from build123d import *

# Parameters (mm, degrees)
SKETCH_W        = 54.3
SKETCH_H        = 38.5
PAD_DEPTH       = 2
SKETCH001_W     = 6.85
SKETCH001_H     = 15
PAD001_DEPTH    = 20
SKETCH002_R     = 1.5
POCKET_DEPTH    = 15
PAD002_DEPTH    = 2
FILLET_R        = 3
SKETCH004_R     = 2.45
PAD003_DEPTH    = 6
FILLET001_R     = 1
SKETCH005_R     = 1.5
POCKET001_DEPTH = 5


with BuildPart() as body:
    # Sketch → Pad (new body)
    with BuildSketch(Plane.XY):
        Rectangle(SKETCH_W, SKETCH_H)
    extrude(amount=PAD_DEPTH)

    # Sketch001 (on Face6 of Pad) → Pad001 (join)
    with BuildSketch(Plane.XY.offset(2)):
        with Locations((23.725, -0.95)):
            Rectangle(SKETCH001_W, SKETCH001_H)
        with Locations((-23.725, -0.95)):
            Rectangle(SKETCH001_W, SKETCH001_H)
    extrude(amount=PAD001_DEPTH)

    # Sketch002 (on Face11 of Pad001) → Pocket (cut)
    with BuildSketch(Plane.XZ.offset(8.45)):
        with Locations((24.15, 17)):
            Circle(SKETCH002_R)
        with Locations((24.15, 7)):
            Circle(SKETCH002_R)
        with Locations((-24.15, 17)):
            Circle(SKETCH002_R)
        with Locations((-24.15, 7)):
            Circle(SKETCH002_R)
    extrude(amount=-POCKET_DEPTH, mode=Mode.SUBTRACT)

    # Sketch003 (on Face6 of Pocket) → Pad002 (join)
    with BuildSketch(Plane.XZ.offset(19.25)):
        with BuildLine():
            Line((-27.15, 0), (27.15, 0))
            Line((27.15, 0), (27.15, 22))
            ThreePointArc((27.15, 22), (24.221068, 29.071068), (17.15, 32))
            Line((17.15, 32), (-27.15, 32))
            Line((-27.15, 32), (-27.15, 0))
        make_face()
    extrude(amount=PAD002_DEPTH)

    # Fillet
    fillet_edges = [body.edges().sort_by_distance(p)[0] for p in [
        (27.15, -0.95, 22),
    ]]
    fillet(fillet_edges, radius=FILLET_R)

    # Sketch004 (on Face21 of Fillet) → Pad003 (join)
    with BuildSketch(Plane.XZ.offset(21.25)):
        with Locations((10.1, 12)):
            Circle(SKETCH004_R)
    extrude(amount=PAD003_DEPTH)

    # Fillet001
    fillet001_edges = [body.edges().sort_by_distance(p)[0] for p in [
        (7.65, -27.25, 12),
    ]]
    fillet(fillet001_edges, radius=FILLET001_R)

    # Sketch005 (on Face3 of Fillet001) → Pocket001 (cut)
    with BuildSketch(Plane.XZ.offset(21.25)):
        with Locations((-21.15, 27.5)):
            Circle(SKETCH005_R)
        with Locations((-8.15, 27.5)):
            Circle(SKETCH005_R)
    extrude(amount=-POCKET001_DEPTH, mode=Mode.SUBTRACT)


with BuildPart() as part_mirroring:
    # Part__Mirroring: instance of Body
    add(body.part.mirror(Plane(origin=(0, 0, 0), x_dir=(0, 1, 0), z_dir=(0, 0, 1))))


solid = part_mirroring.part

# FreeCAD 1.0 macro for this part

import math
import FreeCAD as App
import Part
import Sketcher
Q = App.Units.Quantity


def edges_at(feature, points):
    """Names of the edges that pass closest to the given points."""
    edges = feature.Shape.Edges
    near = lambda p: min(range(len(edges)), key=lambda i: edges[i].distToShape(Part.Vertex(*p))[0])
    return sorted({f"Edge{near(p) + 1}" for p in points})


def add_polygon(sketch, points):
    """Adds a closed chain of lines whose ends are joined by coincident constraints."""
    first, n = sketch.GeometryCount, len(points)
    for a, b in zip(points, points[1:] + points[:1]):
        sketch.addGeometry(Part.LineSegment(App.Vector(*a, 0), App.Vector(*b, 0)), False)
    for i in range(n):
        sketch.addConstraint(Sketcher.Constraint("Coincident", first + i, 2, first + (i + 1) % n, 1))

doc = App.newDocument("Part")
params = doc.addObject("Spreadsheet::Sheet", "Params")
for row, (alias, value) in enumerate([
    ("sketch1_width", "54.3 mm"),
    ("sketch1_height", "38.5 mm"),
    ("pad1_length", "2 mm"),
    ("sketch2_height", "15 mm"),
    ("sketch2_width", "6.85 mm"),
    ("pad2_length", "20 mm"),
    ("sketch3_diameter", "3 mm"),
    ("pocket1_length", "15 mm"),
    ("sketch4_radius", "9.999999 mm"),
    ("sketch4_height", "22 mm"),
    ("sketch4_width", "54.3 mm"),
    ("pad3_length", "2 mm"),
    ("fillet_radius", "3 mm"),
    ("sketch5_diameter", "4.9 mm"),
    ("pad4_length", "6 mm"),
    ("fillet2_radius", "1 mm"),
    ("sketch6_diameter", "3 mm"),
    ("pocket2_length", "5 mm"),
], start=1):
    params.set(f"A{row}", alias)
    params.set(f"B{row}", "=" + value)
    params.setAlias(f"B{row}", alias)

body = doc.addObject("PartDesign::Body", "Body")

sketch1 = body.newObject("Sketcher::SketchObject", "Sketch")
sketch1.AttachmentSupport = (doc.getObject("XY_Plane"), [""])
sketch1.MapMode = "FlatFace"
add_polygon(sketch1, [(-27, 19), (-27, -19), (27, -19), (27, 19)])
sketch1.addConstraint([
    Sketcher.Constraint("Vertical", 0),
    Sketcher.Constraint("Horizontal", 1),
    Sketcher.Constraint("Vertical", 2),
    Sketcher.Constraint("Horizontal", 3),
    Sketcher.Constraint("Symmetric", 0, 2, 2, 2, -1, 1),
    Sketcher.Constraint("DistanceX", 1, 1, 1, 2, Q("54.3 mm")),
    Sketcher.Constraint("DistanceY", 0, 2, 0, 1, Q("38.5 mm")),
])
sketch1.setExpression("Constraints[9]", "Params.sketch1_width")
sketch1.setExpression("Constraints[10]", "Params.sketch1_height")
pad1 = body.newObject("PartDesign::Pad", "Pad")
pad1.Profile = sketch1
pad1.setExpression("Length", "Params.pad1_length")

sketch2 = body.newObject("Sketcher::SketchObject", "Sketch001")
sketch2.AttachmentSupport = (doc.getObject("XY_Plane"), [""])
sketch2.MapMode = "FlatFace"
sketch2.AttachmentOffset = App.Placement(App.Vector(0, 0, 2), App.Rotation())
add_polygon(sketch2, [(20, 7), (20, -8), (27, -8), (27, 7)])
add_polygon(sketch2, [(-27, 7), (-27, -8), (-20, -8), (-20, 7)])
sketch2.addConstraint([
    Sketcher.Constraint("Vertical", 0),
    Sketcher.Constraint("Horizontal", 1),
    Sketcher.Constraint("Vertical", 2),
    Sketcher.Constraint("Horizontal", 3),
    Sketcher.Constraint("Vertical", 4),
    Sketcher.Constraint("Horizontal", 5),
    Sketcher.Constraint("Vertical", 6),
    Sketcher.Constraint("Horizontal", 7),
    Sketcher.Constraint("Symmetric", 1, 2, 4, 2, -2),
    Sketcher.Constraint("Symmetric", 3, 2, 6, 2, -2),
    Sketcher.Constraint("DistanceY", 0, 2, 0, 1, Q("15 mm")),
    Sketcher.Constraint("DistanceX", 1, 1, 1, 2, Q("6.85 mm")),
    Sketcher.Constraint("DistanceX", -1, 1, 0, 2, Q("20.3 mm")),
    Sketcher.Constraint("DistanceY", 0, 2, -1, 1, Q("8.45 mm")),
])
sketch2.setExpression("Constraints[18]", "Params.sketch2_height")
sketch2.setExpression("Constraints[19]", "Params.sketch2_width")
pad2 = body.newObject("PartDesign::Pad", "Pad001")
pad2.Profile = sketch2
pad2.setExpression("Length", "Params.pad2_length")

sketch3 = body.newObject("Sketcher::SketchObject", "Sketch002")
sketch3.AttachmentSupport = (doc.getObject("XZ_Plane"), [""])
sketch3.MapMode = "FlatFace"
sketch3.AttachmentOffset = App.Placement(App.Vector(0, 0, 8.45), App.Rotation())
sketch3.addGeometry([
    Part.Circle(App.Vector(24.1, 17, 0), App.Vector(0, 0, 1), 1.5),
    Part.Circle(App.Vector(24.1, 7, 0), App.Vector(0, 0, 1), 1.5),
    Part.Circle(App.Vector(-24.1, 17, 0), App.Vector(0, 0, 1), 1.5),
    Part.Circle(App.Vector(-24.1, 7, 0), App.Vector(0, 0, 1), 1.5),
], False)
sketch3.addConstraint([
    Sketcher.Constraint("Equal", 0, 1),
    Sketcher.Constraint("Equal", 1, 2),
    Sketcher.Constraint("Equal", 2, 3),
    Sketcher.Constraint("Symmetric", 0, 3, 2, 3, -2),
    Sketcher.Constraint("Symmetric", 1, 3, 3, 3, -2),
    Sketcher.Constraint("Vertical", 0, 3, 1, 3),
    Sketcher.Constraint("Diameter", 0, Q("3 mm")),
    Sketcher.Constraint("DistanceY", -1, 1, 0, 3, Q("17 mm")),
    Sketcher.Constraint("DistanceY", -1, 1, 1, 3, Q("7 mm")),
    Sketcher.Constraint("DistanceX", 2, 3, 0, 3, Q("48.3 mm")),
])
sketch3.setExpression("Constraints[6]", "Params.sketch3_diameter")
pocket1 = body.newObject("PartDesign::Pocket", "Pocket")
pocket1.Profile = sketch3
pocket1.setExpression("Length", "Params.pocket1_length")

sketch4 = body.newObject("Sketcher::SketchObject", "Sketch003")
sketch4.AttachmentSupport = (doc.getObject("XZ_Plane"), [""])
sketch4.MapMode = "FlatFace"
sketch4.AttachmentOffset = App.Placement(App.Vector(0, 0, 19.25), App.Rotation())
sketch4.addGeometry([
    Part.LineSegment(App.Vector(-27, 0, 0), App.Vector(27, 0, 0)),
    Part.LineSegment(App.Vector(27, 0, 0), App.Vector(27, 22, 0)),
    Part.ArcOfCircle(Part.Circle(App.Vector(17, 22, 0), App.Vector(0, 0, 1), 10), math.radians(0), math.radians(90)),
    Part.LineSegment(App.Vector(17, 32, 0), App.Vector(-27, 32, 0)),
    Part.LineSegment(App.Vector(-27, 32, 0), App.Vector(-27, 0, 0)),
], False)
sketch4.addConstraint([
    Sketcher.Constraint("Coincident", 0, 2, 1, 1),
    Sketcher.Constraint("Tangent", 1, 2, 2, 1),
    Sketcher.Constraint("Tangent", 2, 2, 3, 1),
    Sketcher.Constraint("Coincident", 3, 2, 4, 1),
    Sketcher.Constraint("Coincident", 4, 2, 0, 1),
    Sketcher.Constraint("Horizontal", 0),
    Sketcher.Constraint("Vertical", 1),
    Sketcher.Constraint("Horizontal", 3),
    Sketcher.Constraint("Vertical", 4),
    Sketcher.Constraint("Symmetric", 0, 2, 4, 2, -1, 1),
    Sketcher.Constraint("Radius", 2, Q("9.999999 mm")),
    Sketcher.Constraint("DistanceY", 1, 1, 1, 2, Q("22 mm")),
    Sketcher.Constraint("DistanceX", 0, 1, 0, 2, Q("54.3 mm")),
])
sketch4.setExpression("Constraints[10]", "Params.sketch4_radius")
sketch4.setExpression("Constraints[11]", "Params.sketch4_height")
sketch4.setExpression("Constraints[12]", "Params.sketch4_width")
pad3 = body.newObject("PartDesign::Pad", "Pad002")
pad3.Profile = sketch4
pad3.setExpression("Length", "Params.pad3_length")
doc.recompute()

fillet = body.newObject("PartDesign::Fillet", "Fillet")
fillet.Base = (pad3, edges_at(pad3, [(27.15, -0.95, 22)]))
fillet.setExpression("Radius", "Params.fillet_radius")

sketch5 = body.newObject("Sketcher::SketchObject", "Sketch004")
sketch5.AttachmentSupport = (doc.getObject("XZ_Plane"), [""])
sketch5.MapMode = "FlatFace"
sketch5.AttachmentOffset = App.Placement(App.Vector(0, 0, 21.25), App.Rotation())
sketch5.addGeometry(Part.Circle(App.Vector(10.1, 12, 0), App.Vector(0, 0, 1), 2.5), False)
sketch5.addConstraint([
    Sketcher.Constraint("Diameter", 0, Q("4.9 mm")),
    Sketcher.Constraint("DistanceY", -1, 1, 0, 3, Q("12 mm")),
    Sketcher.Constraint("DistanceX", -1, 1, 0, 3, Q("10.1 mm")),
])
sketch5.setExpression("Constraints[0]", "Params.sketch5_diameter")
pad4 = body.newObject("PartDesign::Pad", "Pad003")
pad4.Profile = sketch5
pad4.setExpression("Length", "Params.pad4_length")
doc.recompute()

fillet2 = body.newObject("PartDesign::Fillet", "Fillet001")
fillet2.Base = (pad4, edges_at(pad4, [(7.65, -27.25, 12)]))
fillet2.setExpression("Radius", "Params.fillet2_radius")

sketch6 = body.newObject("Sketcher::SketchObject", "Sketch005")
sketch6.AttachmentSupport = (doc.getObject("XZ_Plane"), [""])
sketch6.MapMode = "FlatFace"
sketch6.AttachmentOffset = App.Placement(App.Vector(0, 0, 21.25), App.Rotation())
sketch6.addGeometry([
    Part.Circle(App.Vector(-21.1, 27.5, 0), App.Vector(0, 0, 1), 1.5),
    Part.Circle(App.Vector(-8.2, 27.5, 0), App.Vector(0, 0, 1), 1.5),
], False)
sketch6.addConstraint([
    Sketcher.Constraint("Equal", 0, 1),
    Sketcher.Constraint("Horizontal", 0, 3, 1, 3),
    Sketcher.Constraint("Diameter", 0, Q("3 mm")),
    Sketcher.Constraint("DistanceX", 0, 3, 1, 3, Q("13 mm")),
    Sketcher.Constraint("DistanceY", -1, 1, 0, 3, Q("27.5 mm")),
    Sketcher.Constraint("DistanceX", 0, 3, -1, 1, Q("21.15 mm")),
])
sketch6.setExpression("Constraints[2]", "Params.sketch6_diameter")
pocket2 = body.newObject("PartDesign::Pocket", "Pocket001")
pocket2.Profile = sketch6
pocket2.setExpression("Length", "Params.pocket2_length")
body2 = doc.addObject("PartDesign::Body", "Body001")
doc.recompute()

mirroring = doc.addObject("Part::Mirroring", "Mirroring")
mirroring.Source = body
mirroring.Base = App.Vector(0, 0, 0)
mirroring.Normal = App.Vector(0, 0, 1)
body2.BaseFeature = mirroring
doc.recompute()
body.Visibility = False
mirroring.Visibility = False

doc.recompute()
